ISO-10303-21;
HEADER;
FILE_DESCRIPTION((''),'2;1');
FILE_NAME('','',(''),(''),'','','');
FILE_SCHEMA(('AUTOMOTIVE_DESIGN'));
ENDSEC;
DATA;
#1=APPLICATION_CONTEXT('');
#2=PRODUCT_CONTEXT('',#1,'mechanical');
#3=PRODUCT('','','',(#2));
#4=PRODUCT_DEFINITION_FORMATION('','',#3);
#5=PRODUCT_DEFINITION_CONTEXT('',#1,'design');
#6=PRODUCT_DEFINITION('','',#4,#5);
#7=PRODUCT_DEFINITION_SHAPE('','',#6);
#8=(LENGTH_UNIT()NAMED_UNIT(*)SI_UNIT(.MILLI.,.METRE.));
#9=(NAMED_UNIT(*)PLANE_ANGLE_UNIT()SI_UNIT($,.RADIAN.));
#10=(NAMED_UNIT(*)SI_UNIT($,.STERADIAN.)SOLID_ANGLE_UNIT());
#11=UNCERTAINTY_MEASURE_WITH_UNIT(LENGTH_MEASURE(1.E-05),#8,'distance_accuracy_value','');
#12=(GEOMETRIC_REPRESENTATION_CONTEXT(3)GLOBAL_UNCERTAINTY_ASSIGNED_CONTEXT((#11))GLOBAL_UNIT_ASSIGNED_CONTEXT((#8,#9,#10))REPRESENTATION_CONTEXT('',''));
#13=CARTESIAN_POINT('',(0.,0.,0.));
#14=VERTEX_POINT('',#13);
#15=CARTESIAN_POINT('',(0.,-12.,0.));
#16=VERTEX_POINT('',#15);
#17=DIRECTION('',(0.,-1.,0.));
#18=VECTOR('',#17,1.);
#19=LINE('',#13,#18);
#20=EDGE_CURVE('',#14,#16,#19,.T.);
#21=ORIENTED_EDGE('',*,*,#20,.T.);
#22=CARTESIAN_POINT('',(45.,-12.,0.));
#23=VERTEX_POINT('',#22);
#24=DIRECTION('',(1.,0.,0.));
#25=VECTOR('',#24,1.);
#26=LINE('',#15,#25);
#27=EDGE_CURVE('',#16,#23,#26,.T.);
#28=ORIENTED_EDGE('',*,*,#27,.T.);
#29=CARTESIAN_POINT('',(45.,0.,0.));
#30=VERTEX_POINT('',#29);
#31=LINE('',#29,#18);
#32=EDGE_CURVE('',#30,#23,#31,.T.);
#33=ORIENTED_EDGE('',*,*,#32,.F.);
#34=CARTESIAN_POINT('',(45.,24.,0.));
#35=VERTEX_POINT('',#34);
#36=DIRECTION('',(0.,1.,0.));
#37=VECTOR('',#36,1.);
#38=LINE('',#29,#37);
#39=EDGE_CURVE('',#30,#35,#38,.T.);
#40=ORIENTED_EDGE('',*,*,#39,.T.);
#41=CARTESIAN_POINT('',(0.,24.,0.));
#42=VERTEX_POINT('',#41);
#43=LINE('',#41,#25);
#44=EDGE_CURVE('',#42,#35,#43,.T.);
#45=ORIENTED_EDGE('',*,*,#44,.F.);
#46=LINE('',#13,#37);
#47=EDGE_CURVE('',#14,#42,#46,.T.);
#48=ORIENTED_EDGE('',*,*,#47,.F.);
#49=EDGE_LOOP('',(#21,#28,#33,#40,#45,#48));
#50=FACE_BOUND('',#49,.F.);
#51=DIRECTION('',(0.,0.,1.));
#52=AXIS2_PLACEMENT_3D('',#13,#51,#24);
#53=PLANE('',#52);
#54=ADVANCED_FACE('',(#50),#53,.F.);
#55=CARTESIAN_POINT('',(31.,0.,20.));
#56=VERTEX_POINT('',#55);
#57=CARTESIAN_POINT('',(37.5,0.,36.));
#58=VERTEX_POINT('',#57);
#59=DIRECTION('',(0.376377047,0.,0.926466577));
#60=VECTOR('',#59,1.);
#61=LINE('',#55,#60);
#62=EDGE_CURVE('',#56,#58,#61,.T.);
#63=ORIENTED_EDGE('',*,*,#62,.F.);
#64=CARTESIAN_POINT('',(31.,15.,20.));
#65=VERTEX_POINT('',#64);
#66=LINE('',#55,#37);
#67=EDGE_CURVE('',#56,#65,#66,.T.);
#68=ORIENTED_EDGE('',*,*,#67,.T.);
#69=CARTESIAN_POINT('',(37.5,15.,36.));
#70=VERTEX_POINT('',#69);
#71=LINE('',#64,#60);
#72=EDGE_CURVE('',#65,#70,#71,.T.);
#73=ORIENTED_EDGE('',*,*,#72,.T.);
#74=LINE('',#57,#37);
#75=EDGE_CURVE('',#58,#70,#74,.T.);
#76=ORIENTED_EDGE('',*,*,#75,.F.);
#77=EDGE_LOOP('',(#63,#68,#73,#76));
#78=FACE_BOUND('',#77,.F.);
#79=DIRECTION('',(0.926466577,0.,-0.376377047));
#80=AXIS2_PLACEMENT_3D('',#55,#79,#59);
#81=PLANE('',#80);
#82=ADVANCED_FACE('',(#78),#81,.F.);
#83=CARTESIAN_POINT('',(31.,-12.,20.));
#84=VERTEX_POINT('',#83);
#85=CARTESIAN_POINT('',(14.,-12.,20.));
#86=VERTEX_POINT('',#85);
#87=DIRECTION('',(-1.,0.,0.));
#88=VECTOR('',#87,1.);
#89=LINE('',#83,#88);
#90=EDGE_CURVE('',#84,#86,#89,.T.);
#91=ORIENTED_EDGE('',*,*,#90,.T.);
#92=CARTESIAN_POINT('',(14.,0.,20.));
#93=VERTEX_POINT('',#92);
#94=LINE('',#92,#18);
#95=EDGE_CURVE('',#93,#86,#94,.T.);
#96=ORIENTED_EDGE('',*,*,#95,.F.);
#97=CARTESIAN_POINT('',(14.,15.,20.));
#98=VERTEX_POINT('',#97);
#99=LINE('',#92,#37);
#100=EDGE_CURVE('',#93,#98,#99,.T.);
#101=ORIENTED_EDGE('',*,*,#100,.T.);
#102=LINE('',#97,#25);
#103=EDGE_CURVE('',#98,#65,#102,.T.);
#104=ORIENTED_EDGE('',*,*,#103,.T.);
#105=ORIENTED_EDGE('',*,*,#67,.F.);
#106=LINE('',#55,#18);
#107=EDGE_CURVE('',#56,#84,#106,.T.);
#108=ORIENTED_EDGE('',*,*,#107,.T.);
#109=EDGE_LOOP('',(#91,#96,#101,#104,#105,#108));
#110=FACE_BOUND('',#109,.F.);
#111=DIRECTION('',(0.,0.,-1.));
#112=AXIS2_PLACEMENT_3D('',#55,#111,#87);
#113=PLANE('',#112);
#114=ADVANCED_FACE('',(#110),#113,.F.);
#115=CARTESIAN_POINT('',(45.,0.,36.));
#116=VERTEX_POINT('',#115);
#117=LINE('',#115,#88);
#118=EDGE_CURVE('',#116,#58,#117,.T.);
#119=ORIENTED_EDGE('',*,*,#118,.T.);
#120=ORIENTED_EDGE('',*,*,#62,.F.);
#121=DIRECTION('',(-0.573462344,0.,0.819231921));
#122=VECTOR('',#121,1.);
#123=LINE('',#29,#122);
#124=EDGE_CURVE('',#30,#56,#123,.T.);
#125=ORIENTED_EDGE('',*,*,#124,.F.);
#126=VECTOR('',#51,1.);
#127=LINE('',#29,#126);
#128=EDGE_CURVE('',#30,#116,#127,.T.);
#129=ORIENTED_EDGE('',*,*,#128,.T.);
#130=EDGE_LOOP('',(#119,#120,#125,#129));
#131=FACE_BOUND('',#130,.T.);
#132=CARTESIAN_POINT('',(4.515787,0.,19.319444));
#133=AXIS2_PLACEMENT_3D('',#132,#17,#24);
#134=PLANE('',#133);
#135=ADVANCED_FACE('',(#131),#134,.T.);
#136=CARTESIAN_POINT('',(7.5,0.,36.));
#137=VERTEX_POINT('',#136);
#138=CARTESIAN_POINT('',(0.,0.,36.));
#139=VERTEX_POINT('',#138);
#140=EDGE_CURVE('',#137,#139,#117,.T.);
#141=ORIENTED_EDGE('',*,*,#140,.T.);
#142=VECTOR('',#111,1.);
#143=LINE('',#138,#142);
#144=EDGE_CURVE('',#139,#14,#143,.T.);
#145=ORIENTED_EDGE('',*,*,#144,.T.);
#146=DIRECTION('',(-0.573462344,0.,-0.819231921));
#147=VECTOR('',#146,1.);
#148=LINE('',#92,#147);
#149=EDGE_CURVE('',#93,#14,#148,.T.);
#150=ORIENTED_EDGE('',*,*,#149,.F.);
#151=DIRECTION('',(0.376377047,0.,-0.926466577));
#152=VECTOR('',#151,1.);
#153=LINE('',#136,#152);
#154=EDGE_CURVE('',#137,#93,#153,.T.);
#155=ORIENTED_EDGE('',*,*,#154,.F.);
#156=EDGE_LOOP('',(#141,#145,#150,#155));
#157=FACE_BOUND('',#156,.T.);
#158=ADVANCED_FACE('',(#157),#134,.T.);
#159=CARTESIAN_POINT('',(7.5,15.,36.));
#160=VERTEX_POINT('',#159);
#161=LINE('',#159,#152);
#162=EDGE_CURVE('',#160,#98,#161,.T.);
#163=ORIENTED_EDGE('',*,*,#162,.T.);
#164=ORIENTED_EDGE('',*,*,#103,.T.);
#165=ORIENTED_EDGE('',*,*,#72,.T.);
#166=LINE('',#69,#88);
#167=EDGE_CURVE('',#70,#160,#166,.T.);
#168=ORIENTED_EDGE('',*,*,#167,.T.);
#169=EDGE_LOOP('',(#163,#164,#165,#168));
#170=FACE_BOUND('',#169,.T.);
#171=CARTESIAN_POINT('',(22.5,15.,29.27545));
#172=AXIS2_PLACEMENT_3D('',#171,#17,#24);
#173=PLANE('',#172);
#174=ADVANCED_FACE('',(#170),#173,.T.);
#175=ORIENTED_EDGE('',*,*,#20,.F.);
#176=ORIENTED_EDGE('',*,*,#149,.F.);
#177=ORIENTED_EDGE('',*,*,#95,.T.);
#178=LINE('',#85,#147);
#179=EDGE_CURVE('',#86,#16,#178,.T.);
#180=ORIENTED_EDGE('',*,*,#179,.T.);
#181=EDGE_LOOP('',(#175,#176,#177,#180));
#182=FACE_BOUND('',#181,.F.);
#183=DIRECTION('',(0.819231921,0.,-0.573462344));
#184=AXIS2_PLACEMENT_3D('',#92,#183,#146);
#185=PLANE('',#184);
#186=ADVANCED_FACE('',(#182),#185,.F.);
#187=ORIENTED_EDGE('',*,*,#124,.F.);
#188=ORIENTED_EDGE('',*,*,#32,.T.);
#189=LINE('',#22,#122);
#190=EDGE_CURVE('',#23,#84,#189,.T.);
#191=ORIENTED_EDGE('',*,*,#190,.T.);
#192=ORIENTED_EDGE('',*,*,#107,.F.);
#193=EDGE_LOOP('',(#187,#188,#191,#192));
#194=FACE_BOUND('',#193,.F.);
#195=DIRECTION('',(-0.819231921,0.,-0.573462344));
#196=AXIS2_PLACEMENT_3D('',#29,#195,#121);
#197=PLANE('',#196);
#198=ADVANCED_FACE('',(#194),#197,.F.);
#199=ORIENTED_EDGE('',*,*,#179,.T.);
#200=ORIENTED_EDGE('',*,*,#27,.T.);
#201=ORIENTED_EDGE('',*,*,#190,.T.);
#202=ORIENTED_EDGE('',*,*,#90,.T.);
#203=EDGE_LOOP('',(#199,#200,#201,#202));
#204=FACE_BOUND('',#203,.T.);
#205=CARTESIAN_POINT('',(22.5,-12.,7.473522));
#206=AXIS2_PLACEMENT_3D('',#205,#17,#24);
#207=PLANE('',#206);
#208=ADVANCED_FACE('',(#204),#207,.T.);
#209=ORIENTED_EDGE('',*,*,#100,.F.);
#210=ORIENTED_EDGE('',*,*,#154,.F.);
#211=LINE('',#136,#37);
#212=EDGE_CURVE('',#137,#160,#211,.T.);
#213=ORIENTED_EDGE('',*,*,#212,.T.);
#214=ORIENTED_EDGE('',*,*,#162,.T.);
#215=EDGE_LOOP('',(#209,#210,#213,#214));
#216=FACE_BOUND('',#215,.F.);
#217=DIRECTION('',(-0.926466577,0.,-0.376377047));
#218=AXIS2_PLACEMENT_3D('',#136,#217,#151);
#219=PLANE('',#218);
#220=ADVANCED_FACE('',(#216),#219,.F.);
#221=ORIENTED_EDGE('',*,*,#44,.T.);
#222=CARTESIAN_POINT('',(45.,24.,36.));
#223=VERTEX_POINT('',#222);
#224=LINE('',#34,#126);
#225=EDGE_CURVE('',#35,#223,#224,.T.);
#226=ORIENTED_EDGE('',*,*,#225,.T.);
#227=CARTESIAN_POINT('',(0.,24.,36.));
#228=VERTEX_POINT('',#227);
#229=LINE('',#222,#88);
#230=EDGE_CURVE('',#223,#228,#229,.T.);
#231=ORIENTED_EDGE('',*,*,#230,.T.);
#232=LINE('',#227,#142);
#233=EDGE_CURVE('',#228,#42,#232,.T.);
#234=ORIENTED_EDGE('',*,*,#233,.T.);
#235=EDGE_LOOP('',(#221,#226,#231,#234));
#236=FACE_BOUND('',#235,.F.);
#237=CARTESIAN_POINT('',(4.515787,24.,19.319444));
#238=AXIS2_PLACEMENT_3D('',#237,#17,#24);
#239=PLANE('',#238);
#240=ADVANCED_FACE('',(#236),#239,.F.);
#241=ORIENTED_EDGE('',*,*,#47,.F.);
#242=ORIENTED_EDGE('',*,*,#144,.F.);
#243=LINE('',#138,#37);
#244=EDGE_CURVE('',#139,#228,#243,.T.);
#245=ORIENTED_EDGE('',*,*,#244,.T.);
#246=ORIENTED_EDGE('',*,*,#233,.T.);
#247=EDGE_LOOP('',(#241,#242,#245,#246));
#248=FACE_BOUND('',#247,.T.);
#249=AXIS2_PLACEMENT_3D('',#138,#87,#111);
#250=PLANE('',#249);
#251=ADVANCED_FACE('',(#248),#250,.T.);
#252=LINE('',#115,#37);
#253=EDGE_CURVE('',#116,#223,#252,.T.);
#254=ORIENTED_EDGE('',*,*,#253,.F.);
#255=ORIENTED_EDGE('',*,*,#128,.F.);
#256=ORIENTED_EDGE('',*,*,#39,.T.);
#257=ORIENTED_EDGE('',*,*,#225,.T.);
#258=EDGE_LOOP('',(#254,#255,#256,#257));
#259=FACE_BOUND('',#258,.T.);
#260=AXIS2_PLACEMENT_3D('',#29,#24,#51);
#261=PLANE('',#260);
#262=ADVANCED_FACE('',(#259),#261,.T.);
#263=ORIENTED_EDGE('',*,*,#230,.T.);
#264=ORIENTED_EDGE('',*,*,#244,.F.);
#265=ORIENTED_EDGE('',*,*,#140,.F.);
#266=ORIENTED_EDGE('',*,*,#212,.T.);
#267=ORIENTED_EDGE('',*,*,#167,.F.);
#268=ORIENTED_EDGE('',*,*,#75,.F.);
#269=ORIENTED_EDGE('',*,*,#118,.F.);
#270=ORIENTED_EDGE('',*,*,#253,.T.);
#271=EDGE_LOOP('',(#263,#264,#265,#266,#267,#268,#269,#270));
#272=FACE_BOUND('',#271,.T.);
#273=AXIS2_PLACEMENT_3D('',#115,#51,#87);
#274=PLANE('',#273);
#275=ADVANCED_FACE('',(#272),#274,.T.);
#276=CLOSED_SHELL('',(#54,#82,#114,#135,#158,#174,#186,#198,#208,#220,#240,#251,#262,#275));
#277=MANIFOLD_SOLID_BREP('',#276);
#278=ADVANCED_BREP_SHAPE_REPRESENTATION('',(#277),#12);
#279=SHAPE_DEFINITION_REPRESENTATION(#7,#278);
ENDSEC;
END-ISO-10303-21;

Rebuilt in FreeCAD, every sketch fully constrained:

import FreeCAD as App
import Part
import Sketcher

V = App.Vector

doc = App.newDocument("Part")
body = doc.addObject("PartDesign::Body", "Body")

# Sketch on XZ plane
sketch1 = body.newObject("Sketcher::SketchObject", "Sketch")
sketch1.AttachmentSupport = (doc.getObject("XZ_Plane"), [""])
sketch1.MapMode = "FlatFace"
sketch1.addGeometry([
    Part.LineSegment(V(0, 36, 0), V(0, 0, 0)),
    Part.LineSegment(V(0, 0, 0), V(45, 0, 0)),
    Part.LineSegment(V(45, 0, 0), V(45, 36, 0)),
    Part.LineSegment(V(45, 36, 0), V(0, 36, 0)),
], False)
sketch1.addConstraint([
    Sketcher.Constraint("Coincident", 0, 2, 1, 1),
    Sketcher.Constraint("Coincident", 1, 2, 2, 1),
    Sketcher.Constraint("Coincident", 2, 2, 3, 1),
    Sketcher.Constraint("Coincident", 3, 2, 0, 1),
    Sketcher.Constraint("Vertical", 0),
    Sketcher.Constraint("Horizontal", 1),
    Sketcher.Constraint("Vertical", 2),
    Sketcher.Constraint("Horizontal", 3),
    Sketcher.Constraint("Coincident", 0, 2, -1, 1),
    Sketcher.Constraint("DistanceX", 1, 1, 1, 2, 45.0),
    Sketcher.Constraint("DistanceY", 0, 2, 0, 1, 36.0),
])
pad1 = body.newObject("PartDesign::Pad", "Pad")
pad1.Profile = sketch1
pad1.Length = 24
pad1.Reversed = True

# Sketch on XZ plane
sketch2 = body.newObject("Sketcher::SketchObject", "Sketch001")
sketch2.AttachmentSupport = (doc.getObject("XZ_Plane"), [""])
sketch2.MapMode = "FlatFace"
sketch2.addGeometry([
    Part.LineSegment(V(8, 36, 0), V(14, 20, 0)),
    Part.LineSegment(V(14, 20, 0), V(31, 20, 0)),
    Part.LineSegment(V(31, 20, 0), V(38, 36, 0)),
    Part.LineSegment(V(38, 36, 0), V(8, 36, 0)),
], False)
sketch2.addConstraint([
    Sketcher.Constraint("Coincident", 0, 2, 1, 1),
    Sketcher.Constraint("Coincident", 1, 2, 2, 1),
    Sketcher.Constraint("Coincident", 2, 2, 3, 1),
    Sketcher.Constraint("Coincident", 3, 2, 0, 1),
    Sketcher.Constraint("Horizontal", 1),
    Sketcher.Constraint("Horizontal", 3),
    Sketcher.Constraint("Equal", 0, 2),
    Sketcher.Constraint("DistanceX", 1, 1, 1, 2, 17.0),
    Sketcher.Constraint("DistanceX", 3, 2, 3, 1, 30.0),
    Sketcher.Constraint("DistanceX", -1, 1, 0, 2, 14.0),
    Sketcher.Constraint("DistanceY", -1, 1, 0, 2, 20.0),
    Sketcher.Constraint("DistanceY", -1, 1, 2, 2, 36.0),
])
pocket1 = body.newObject("PartDesign::Pocket", "Pocket")
pocket1.Profile = sketch2
pocket1.Length = 15

# Sketch on XZ plane
sketch3 = body.newObject("Sketcher::SketchObject", "Sketch002")
sketch3.AttachmentSupport = (doc.getObject("XZ_Plane"), [""])
sketch3.MapMode = "FlatFace"
sketch3.addGeometry([
    Part.LineSegment(V(14, 20, 0), V(0, 0, 0)),
    Part.LineSegment(V(0, 0, 0), V(45, 0, 0)),
    Part.LineSegment(V(45, 0, 0), V(31, 20, 0)),
    Part.LineSegment(V(31, 20, 0), V(14, 20, 0)),
], False)
sketch3.addConstraint([
    Sketcher.Constraint("Coincident", 0, 2, 1, 1),
    Sketcher.Constraint("Coincident", 1, 2, 2, 1),
    Sketcher.Constraint("Coincident", 2, 2, 3, 1),
    Sketcher.Constraint("Coincident", 3, 2, 0, 1),
    Sketcher.Constraint("Horizontal", 1),
    Sketcher.Constraint("Horizontal", 3),
    Sketcher.Constraint("Coincident", 0, 2, -1, 1),
    Sketcher.Constraint("Equal", 0, 2),
    Sketcher.Constraint("DistanceX", 1, 1, 1, 2, 45.0),
    Sketcher.Constraint("DistanceX", 3, 2, 3, 1, 17.0),
    Sketcher.Constraint("DistanceY", -1, 1, 2, 2, 20.0),
])
pad2 = body.newObject("PartDesign::Pad", "Pad001")
pad2.Profile = sketch3
pad2.Length = 12

doc.recompute()
